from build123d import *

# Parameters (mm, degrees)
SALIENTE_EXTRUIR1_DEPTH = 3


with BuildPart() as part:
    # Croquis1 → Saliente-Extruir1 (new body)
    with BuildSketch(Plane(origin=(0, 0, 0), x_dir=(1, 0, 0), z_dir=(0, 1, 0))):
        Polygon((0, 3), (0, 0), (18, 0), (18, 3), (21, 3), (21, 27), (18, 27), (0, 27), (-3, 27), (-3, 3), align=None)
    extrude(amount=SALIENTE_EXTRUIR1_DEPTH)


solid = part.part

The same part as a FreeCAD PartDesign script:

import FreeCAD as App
import Part
import Sketcher

V = App.Vector
Q = App.Units.Quantity


def add_polygon(sketch, points):
    """Adds a closed chain of lines whose ends are joined by coincident constraints."""
    first, n = sketch.GeometryCount, len(points)
    for a, b in zip(points, points[1:] + points[:1]):
        sketch.addGeometry(Part.LineSegment(App.Vector(*a, 0), App.Vector(*b, 0)), False)
    for i in range(n):
        sketch.addConstraint(Sketcher.Constraint("Coincident", first + i, 2, first + (i + 1) % n, 1))

doc = App.newDocument("Part")
params = doc.addObject("Spreadsheet::Sheet", "Params")
for row, (alias, value) in enumerate([
    ("sketch1_width", "18 mm"),
    ("sketch1_width2", "3 mm"),
    ("pad1_length", "3 mm"),
], start=1):
    params.set(f"A{row}", alias)
    params.set(f"B{row}", "=" + value)
    params.setAlias(f"B{row}", alias)

body = doc.addObject("PartDesign::Body", "Body")

# Sketch on XZ plane
sketch1 = body.newObject("Sketcher::SketchObject", "Sketch")
sketch1.AttachmentSupport = (doc.getObject("XZ_Plane"), [""])
sketch1.MapMode = "FlatFace"
add_polygon(sketch1, [(0, -3), (0, 0), (18, 0), (18, -3), (21, -3), (21, -27), (-3, -27), (-3, -3)])  # lines 0-7
sketch1.addConstraint([
    Sketcher.Constraint("Vertical", 0),
    Sketcher.Constraint("Horizontal", 1),
    Sketcher.Constraint("Vertical", 2),
    Sketcher.Constraint("Horizontal", 3),
    Sketcher.Constraint("Vertical", 4),
    Sketcher.Constraint("Horizontal", 5),
    Sketcher.Constraint("Vertical", 6),
    Sketcher.Constraint("Horizontal", 7),
    Sketcher.Constraint("Coincident", 0, 2, -1, 1),
    Sketcher.Constraint("Horizontal", 3, 2, 6, 2),
    Sketcher.Constraint("Equal", 3, 7),
    Sketcher.Constraint("Equal", 7, 0),
    Sketcher.Constraint("Equal", 5, 4),
    Sketcher.Constraint("DistanceX", 1, 1, 1, 2, Q("18 mm")),
    Sketcher.Constraint("DistanceX", 3, 1, 3, 2, Q("3 mm")),
])
sketch1.setExpression("Constraints[21]", "Params.sketch1_width")
sketch1.setExpression("Constraints[22]", "Params.sketch1_width2")
pad1 = body.newObject("PartDesign::Pad", "Pad")
pad1.Profile = sketch1
pad1.setExpression("Length", "Params.pad1_length")
pad1.Reversed = True

doc.recompute()
